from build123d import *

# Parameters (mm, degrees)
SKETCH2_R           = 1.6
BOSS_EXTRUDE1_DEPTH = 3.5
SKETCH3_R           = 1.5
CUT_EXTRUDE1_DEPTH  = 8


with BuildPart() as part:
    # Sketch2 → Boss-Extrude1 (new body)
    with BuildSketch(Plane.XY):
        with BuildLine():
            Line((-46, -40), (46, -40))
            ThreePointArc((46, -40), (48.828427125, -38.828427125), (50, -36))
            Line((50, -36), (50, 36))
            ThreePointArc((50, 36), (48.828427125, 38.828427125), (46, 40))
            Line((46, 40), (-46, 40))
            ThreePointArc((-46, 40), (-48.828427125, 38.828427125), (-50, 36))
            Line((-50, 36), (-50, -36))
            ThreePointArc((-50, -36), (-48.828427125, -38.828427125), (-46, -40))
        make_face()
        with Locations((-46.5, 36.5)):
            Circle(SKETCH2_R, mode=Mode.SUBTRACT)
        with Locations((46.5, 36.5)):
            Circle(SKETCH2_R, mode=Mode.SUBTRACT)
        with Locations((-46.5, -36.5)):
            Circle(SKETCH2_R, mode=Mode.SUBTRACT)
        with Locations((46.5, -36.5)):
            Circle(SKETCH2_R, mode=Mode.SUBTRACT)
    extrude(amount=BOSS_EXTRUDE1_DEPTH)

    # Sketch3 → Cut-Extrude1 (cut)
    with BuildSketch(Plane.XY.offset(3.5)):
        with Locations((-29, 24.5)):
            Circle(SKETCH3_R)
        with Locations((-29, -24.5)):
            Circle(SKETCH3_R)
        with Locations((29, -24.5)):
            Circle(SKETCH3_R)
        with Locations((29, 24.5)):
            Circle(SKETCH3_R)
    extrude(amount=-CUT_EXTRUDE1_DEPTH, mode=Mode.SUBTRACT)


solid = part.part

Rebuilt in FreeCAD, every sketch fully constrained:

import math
import FreeCAD as App
import Part
import Sketcher

doc = App.newDocument("Part")
body = doc.addObject("PartDesign::Body", "Body")

# Sketch on XY plane
sketch1 = body.newObject("Sketcher::SketchObject", "Sketch")
sketch1.AttachmentSupport = (doc.getObject("XY_Plane"), [""])
sketch1.MapMode = "FlatFace"
sketch1.addGeometry(Part.LineSegment(App.Vector(-46, -40, 0), App.Vector(46, -40, 0)), False)
sketch1.addGeometry(Part.ArcOfCircle(Part.Circle(App.Vector(46, -36, 0), App.Vector(0, 0, 1), 4), math.radians(-90), math.radians(0)), False)
sketch1.addGeometry(Part.LineSegment(App.Vector(50, -36, 0), App.Vector(50, 36, 0)), False)
sketch1.addGeometry(Part.ArcOfCircle(Part.Circle(App.Vector(46, 36, 0), App.Vector(0, 0, 1), 4), math.radians(0), math.radians(90)), False)
sketch1.addGeometry(Part.LineSegment(App.Vector(46, 40, 0), App.Vector(-46, 40, 0)), False)
sketch1.addGeometry(Part.ArcOfCircle(Part.Circle(App.Vector(-46, 36, 0), App.Vector(0, 0, 1), 4), math.radians(90), math.radians(180)), False)
sketch1.addGeometry(Part.LineSegment(App.Vector(-50, 36, 0), App.Vector(-50, -36, 0)), False)
sketch1.addGeometry(Part.ArcOfCircle(Part.Circle(App.Vector(-46, -36, 0), App.Vector(0, 0, 1), 4), math.radians(180), math.radians(270)), False)
sketch1.addGeometry(Part.Circle(App.Vector(-46.5, -36.5, 0), App.Vector(0, 0, 1), 1.6), False)
sketch1.addGeometry(Part.Circle(App.Vector(46.5, -36.5, 0), App.Vector(0, 0, 1), 1.6), False)
sketch1.addGeometry(Part.Circle(App.Vector(-46.5, 36.5, 0), App.Vector(0, 0, 1), 1.6), False)
sketch1.addGeometry(Part.Circle(App.Vector(46.5, 36.5, 0), App.Vector(0, 0, 1), 1.6), False)
sketch1.addConstraint(Sketcher.Constraint("Tangent", 0, 2, 1, 1))
sketch1.addConstraint(Sketcher.Constraint("Tangent", 1, 2, 2, 1))
sketch1.addConstraint(Sketcher.Constraint("Tangent", 2, 2, 3, 1))
sketch1.addConstraint(Sketcher.Constraint("Tangent", 3, 2, 4, 1))
sketch1.addConstraint(Sketcher.Constraint("Tangent", 4, 2, 5, 1))
sketch1.addConstraint(Sketcher.Constraint("Tangent", 5, 2, 6, 1))
sketch1.addConstraint(Sketcher.Constraint("Tangent", 6, 2, 7, 1))
sketch1.addConstraint(Sketcher.Constraint("Tangent", 7, 2, 0, 1))
sketch1.addConstraint(Sketcher.Constraint("Horizontal", 0))
sketch1.addConstraint(Sketcher.Constraint("Vertical", 2))
sketch1.addConstraint(Sketcher.Constraint("Horizontal", 4))
sketch1.addConstraint(Sketcher.Constraint("Vertical", 6))
sketch1.addConstraint(Sketcher.Constraint("Equal", 1, 3))
sketch1.addConstraint(Sketcher.Constraint("Equal", 3, 5))
sketch1.addConstraint(Sketcher.Constraint("Equal", 5, 7))
sketch1.addConstraint(Sketcher.Constraint("Equal", 8, 9))
sketch1.addConstraint(Sketcher.Constraint("Equal", 9, 10))
sketch1.addConstraint(Sketcher.Constraint("Equal", 10, 11))
sketch1.addConstraint(Sketcher.Constraint("Symmetric", 1, 3, 5, 3, -1, 1))
sketch1.addConstraint(Sketcher.Constraint("Symmetric", 9, 3, 10, 3, -1, 1))
sketch1.addConstraint(Sketcher.Constraint("Symmetric", 8, 3, 11, 3, -1, 1))
sketch1.addConstraint(Sketcher.Constraint("Symmetric", 8, 3, 9, 3, -2))
sketch1.addConstraint(Sketcher.Constraint("Radius", 1, 4.0))
sketch1.addConstraint(Sketcher.Constraint("Diameter", 8, 3.2))
sketch1.addConstraint(Sketcher.Constraint("DistanceX", 0, 1, 0, 2, 92.0))
sketch1.addConstraint(Sketcher.Constraint("DistanceY", 2, 1, 2, 2, 72.0))
sketch1.addConstraint(Sketcher.Constraint("DistanceX", 8, 3, 9, 3, 93.0))
sketch1.addConstraint(Sketcher.Constraint("DistanceY", 8, 3, 10, 3, 73.0))
pad1 = body.newObject("PartDesign::Pad", "Pad")
pad1.Profile = sketch1
pad1.Length = 3.5

# Sketch on XY plane
sketch2 = body.newObject("Sketcher::SketchObject", "Sketch001")
sketch2.AttachmentSupport = (doc.getObject("XY_Plane"), [""])
sketch2.MapMode = "FlatFace"
sketch2.AttachmentOffset = App.Placement(App.Vector(0, 0, 3.5), App.Rotation())
sketch2.addGeometry(Part.Circle(App.Vector(-29, 24.5, 0), App.Vector(0, 0, 1), 1.5), False)
sketch2.addGeometry(Part.Circle(App.Vector(-29, -24.5, 0), App.Vector(0, 0, 1), 1.5), False)
sketch2.addGeometry(Part.Circle(App.Vector(29, -24.5, 0), App.Vector(0, 0, 1), 1.5), False)
sketch2.addGeometry(Part.Circle(App.Vector(29, 24.5, 0), App.Vector(0, 0, 1), 1.5), False)
sketch2.addConstraint(Sketcher.Constraint("Equal", 0, 1))
sketch2.addConstraint(Sketcher.Constraint("Equal", 1, 2))
sketch2.addConstraint(Sketcher.Constraint("Equal", 2, 3))
sketch2.addConstraint(Sketcher.Constraint("Symmetric", 0, 3, 2, 3, -1, 1))
sketch2.addConstraint(Sketcher.Constraint("Symmetric", 1, 3, 3, 3, -1, 1))
sketch2.addConstraint(Sketcher.Constraint("Symmetric", 1, 3, 2, 3, -2))
sketch2.addConstraint(Sketcher.Constraint("Diameter", 0, 3.0))
sketch2.addConstraint(Sketcher.Constraint("DistanceX", 0, 3, -1, 1, 29.0))
sketch2.addConstraint(Sketcher.Constraint("DistanceY", 1, 3, 0, 3, 49.0))
pocket1 = body.newObject("PartDesign::Pocket", "Pocket")
pocket1.Profile = sketch2
pocket1.Length = 8

doc.recompute()
